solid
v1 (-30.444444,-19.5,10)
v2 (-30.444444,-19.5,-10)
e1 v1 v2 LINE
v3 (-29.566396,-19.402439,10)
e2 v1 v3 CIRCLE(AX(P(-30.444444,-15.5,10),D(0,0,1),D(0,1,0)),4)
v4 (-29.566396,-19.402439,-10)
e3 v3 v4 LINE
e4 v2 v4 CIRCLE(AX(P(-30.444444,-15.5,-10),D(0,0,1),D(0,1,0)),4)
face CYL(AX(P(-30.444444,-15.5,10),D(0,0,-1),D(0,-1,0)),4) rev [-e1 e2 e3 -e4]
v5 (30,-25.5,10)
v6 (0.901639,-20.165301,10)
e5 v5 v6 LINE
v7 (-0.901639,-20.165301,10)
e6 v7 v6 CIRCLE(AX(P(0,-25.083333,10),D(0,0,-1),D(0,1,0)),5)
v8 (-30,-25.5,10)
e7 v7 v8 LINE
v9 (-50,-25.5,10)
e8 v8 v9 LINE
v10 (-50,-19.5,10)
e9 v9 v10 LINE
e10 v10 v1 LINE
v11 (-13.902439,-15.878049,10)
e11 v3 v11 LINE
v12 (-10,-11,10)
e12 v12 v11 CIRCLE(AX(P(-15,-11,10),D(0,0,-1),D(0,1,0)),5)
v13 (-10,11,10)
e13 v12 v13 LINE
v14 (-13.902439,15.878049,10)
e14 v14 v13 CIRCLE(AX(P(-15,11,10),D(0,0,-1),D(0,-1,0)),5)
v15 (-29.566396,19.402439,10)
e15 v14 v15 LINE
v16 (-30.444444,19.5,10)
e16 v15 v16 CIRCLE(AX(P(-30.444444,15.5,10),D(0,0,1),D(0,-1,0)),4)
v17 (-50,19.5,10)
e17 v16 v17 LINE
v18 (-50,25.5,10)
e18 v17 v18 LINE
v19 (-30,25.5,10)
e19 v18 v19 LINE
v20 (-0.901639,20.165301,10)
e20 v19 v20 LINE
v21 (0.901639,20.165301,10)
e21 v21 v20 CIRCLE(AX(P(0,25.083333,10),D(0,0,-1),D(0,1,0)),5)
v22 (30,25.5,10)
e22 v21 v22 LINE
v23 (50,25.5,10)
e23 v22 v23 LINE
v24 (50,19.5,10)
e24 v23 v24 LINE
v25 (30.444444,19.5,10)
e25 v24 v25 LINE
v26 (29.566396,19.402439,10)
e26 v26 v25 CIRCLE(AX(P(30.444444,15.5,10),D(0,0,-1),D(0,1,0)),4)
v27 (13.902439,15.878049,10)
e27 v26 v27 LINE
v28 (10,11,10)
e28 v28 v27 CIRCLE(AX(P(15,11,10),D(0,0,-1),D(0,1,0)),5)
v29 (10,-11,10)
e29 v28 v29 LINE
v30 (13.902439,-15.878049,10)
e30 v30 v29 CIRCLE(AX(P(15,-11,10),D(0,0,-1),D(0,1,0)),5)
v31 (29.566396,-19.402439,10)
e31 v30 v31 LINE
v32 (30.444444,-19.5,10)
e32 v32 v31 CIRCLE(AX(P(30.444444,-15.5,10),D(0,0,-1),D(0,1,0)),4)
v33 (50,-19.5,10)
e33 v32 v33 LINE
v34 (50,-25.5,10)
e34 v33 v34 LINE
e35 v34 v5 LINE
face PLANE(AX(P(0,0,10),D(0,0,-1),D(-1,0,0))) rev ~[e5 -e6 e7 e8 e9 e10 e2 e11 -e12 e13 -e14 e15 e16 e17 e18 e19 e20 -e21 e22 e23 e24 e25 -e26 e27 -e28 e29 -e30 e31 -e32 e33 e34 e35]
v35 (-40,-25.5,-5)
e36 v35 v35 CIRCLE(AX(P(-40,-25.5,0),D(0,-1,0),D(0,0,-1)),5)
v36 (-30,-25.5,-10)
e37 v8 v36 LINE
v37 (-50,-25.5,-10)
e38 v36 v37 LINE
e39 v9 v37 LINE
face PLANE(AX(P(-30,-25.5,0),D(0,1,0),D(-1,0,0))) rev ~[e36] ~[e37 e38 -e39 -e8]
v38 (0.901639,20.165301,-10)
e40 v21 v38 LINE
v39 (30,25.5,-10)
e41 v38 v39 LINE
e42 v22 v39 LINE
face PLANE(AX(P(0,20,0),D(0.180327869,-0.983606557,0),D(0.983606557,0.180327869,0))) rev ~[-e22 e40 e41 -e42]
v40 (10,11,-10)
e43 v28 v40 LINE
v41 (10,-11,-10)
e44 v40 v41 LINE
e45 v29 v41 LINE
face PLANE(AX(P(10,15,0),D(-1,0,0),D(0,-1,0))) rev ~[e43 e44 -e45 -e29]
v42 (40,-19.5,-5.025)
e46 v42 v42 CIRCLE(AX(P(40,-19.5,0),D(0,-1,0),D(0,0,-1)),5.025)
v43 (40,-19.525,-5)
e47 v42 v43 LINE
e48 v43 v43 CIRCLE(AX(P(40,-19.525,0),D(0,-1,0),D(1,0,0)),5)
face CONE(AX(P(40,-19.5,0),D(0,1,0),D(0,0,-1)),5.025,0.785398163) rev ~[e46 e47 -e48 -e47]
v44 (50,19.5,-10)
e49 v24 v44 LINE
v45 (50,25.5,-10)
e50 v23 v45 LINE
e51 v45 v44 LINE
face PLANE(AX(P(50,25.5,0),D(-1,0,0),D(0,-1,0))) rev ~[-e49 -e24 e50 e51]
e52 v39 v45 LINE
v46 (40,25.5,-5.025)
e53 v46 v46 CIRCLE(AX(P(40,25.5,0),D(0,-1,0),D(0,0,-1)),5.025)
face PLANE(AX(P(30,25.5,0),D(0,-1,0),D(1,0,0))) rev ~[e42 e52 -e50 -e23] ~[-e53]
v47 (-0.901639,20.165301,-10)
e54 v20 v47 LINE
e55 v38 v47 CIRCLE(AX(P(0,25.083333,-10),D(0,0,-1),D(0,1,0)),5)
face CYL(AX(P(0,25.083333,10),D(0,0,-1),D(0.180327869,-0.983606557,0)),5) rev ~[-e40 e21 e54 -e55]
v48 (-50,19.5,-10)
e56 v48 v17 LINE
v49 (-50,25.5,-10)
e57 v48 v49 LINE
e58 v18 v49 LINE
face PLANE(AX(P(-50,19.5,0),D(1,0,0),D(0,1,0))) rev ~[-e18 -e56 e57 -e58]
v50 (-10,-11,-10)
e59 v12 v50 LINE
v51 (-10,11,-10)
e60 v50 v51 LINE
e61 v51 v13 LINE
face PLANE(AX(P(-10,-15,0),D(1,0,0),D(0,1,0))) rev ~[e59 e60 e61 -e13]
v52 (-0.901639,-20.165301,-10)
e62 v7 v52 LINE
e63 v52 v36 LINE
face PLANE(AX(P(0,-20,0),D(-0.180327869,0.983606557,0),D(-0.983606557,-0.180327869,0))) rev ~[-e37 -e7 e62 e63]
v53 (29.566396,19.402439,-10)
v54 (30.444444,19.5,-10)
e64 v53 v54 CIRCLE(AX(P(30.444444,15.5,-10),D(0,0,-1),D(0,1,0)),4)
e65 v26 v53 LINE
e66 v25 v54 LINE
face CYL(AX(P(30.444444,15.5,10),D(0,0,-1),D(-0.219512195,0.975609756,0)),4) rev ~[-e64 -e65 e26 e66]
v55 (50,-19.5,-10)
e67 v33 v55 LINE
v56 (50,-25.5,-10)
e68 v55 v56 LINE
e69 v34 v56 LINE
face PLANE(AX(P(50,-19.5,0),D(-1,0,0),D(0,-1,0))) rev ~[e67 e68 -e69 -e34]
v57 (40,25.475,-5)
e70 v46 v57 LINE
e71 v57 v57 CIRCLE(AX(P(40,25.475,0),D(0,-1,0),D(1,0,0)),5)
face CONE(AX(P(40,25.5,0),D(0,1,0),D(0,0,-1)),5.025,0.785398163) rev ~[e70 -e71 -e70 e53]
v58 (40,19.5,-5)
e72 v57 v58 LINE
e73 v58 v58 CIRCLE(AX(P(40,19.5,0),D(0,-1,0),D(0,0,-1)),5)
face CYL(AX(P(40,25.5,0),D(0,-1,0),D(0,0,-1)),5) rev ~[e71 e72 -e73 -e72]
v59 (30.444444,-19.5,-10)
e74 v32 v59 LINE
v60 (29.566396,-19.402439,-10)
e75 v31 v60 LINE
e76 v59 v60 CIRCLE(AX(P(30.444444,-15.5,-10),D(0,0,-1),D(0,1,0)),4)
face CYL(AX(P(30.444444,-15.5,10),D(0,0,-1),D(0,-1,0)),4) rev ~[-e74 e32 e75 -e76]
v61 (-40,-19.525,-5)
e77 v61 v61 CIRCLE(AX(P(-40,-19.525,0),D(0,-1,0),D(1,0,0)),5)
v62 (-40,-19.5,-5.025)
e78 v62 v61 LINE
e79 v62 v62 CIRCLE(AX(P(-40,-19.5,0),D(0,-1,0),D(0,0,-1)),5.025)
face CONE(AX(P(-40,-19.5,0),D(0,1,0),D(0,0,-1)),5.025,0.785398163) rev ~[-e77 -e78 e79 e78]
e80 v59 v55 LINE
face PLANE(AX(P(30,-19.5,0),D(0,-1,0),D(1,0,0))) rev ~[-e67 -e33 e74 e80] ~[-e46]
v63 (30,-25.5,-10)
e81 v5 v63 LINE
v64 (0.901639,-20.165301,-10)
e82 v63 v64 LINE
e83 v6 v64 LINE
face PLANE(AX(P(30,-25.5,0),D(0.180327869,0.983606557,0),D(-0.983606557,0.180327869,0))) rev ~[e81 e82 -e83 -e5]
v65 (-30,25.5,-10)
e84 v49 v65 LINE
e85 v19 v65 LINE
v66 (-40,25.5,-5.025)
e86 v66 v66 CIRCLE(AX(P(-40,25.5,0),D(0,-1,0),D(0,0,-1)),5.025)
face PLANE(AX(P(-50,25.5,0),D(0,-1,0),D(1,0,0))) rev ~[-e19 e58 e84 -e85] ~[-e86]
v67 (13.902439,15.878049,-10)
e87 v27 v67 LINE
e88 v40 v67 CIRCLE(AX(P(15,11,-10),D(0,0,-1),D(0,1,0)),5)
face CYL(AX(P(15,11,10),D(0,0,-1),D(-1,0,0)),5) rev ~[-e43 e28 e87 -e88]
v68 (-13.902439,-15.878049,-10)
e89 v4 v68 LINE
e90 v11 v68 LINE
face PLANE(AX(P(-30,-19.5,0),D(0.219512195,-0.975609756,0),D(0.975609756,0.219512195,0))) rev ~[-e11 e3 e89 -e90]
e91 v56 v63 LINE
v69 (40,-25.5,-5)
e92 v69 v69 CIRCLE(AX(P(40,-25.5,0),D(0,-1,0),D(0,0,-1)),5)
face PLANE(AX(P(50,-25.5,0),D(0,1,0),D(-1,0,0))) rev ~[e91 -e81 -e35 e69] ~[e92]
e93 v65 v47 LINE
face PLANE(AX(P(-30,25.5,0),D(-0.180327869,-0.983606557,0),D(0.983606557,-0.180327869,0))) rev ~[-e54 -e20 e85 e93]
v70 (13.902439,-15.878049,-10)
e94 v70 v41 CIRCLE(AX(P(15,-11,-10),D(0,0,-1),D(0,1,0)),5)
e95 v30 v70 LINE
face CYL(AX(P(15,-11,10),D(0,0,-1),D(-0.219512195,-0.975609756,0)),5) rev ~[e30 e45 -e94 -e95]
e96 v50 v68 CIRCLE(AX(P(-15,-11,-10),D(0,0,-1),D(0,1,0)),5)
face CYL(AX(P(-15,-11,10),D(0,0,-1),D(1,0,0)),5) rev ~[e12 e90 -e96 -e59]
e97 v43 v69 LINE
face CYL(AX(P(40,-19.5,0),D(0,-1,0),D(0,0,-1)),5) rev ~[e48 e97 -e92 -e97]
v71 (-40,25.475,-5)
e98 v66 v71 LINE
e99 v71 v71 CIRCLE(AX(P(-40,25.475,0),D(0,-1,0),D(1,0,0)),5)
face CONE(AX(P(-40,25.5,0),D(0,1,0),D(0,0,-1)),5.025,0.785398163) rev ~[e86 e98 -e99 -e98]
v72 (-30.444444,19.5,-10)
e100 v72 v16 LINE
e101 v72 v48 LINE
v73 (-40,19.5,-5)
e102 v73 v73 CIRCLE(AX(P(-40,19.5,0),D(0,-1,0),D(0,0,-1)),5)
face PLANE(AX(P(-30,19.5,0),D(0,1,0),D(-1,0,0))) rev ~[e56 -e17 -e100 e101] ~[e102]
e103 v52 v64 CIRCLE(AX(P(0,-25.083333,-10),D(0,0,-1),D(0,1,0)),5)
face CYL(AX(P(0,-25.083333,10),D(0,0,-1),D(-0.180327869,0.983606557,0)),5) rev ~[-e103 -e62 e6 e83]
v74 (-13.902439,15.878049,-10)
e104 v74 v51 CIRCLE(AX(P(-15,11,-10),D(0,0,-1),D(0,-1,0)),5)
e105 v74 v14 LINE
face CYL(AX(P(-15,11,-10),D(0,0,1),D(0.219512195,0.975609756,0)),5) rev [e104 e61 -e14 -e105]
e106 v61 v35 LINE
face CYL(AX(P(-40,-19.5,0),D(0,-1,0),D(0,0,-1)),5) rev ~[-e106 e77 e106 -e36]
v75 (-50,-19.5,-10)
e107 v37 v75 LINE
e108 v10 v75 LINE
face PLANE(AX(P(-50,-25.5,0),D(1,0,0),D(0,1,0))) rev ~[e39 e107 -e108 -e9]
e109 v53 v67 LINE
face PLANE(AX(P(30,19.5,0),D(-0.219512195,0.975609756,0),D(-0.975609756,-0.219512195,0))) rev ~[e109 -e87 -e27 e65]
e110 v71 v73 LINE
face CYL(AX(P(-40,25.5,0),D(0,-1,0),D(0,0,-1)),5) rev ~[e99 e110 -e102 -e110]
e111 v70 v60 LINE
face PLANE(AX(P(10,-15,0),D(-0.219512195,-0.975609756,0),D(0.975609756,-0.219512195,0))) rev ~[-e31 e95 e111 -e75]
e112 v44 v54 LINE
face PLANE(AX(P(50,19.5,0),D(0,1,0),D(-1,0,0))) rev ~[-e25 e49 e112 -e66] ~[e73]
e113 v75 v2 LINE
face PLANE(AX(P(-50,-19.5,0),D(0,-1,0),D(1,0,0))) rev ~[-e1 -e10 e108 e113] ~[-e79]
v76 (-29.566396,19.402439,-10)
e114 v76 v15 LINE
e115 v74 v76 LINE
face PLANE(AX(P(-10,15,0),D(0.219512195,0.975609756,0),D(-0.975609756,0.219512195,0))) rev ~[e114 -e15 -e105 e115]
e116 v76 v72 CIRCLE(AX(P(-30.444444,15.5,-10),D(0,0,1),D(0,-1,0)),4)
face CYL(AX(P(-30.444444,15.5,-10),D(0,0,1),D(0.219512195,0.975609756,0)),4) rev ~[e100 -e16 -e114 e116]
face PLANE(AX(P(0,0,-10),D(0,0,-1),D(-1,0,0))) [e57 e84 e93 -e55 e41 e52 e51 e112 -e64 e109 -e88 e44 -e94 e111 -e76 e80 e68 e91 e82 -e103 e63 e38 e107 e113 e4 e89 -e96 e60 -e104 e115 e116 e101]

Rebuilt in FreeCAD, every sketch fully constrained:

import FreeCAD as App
import Part
import Sketcher
Q = App.Units.Quantity


def edges_at(feature, points):
    """Names of the edges that pass closest to the given points."""
    edges = feature.Shape.Edges
    near = lambda p: min(range(len(edges)), key=lambda i: edges[i].distToShape(Part.Vertex(*p))[0])
    return sorted({f"Edge{near(p) + 1}" for p in points})


def add_polygon(sketch, points):
    """Adds a closed chain of lines whose ends are joined by coincident constraints."""
    first, n = sketch.GeometryCount, len(points)
    for a, b in zip(points, points[1:] + points[:1]):
        sketch.addGeometry(Part.LineSegment(App.Vector(*a, 0), App.Vector(*b, 0)), False)
    for i in range(n):
        sketch.addConstraint(Sketcher.Constraint("Coincident", first + i, 2, first + (i + 1) % n, 1))

doc = App.newDocument("Part")
params = doc.addObject("Spreadsheet::Sheet", "Params")
for row, (alias, value) in enumerate([
    ("sketch1_width", "20 mm"),
    ("sketch1_height", "6 mm"),
    ("sketch1_height2", "30 mm"),
    ("pad1_length", "20 mm"),
    ("fillet_radius", "5 mm"),
    ("sketch2_diameter", "10 mm"),
    ("hole_diameter", "10 mm"),
    ("hole_depth", "24.5 mm"),
    ("hole_csink_diameter", "10.05 mm"),
    ("sketch3_diameter", "10 mm"),
    ("hole2_diameter", "10 mm"),
    ("hole2_depth", "24.5 mm"),
    ("hole2_csink_diameter", "10.05 mm"),
    ("fillet2_radius", "4 mm"),
], start=1):
    params.set(f"A{row}", alias)
    params.set(f"B{row}", "=" + value)
    params.setAlias(f"B{row}", alias)

body = doc.addObject("PartDesign::Body", "Body")

sketch1 = body.newObject("Sketcher::SketchObject", "Sketch")
sketch1.AttachmentSupport = (doc.getObject("XY_Plane"), [""])
sketch1.MapMode = "FlatFace"
add_polygon(sketch1, [(-50, 26), (-50, 20), (-30, 20), (-10, 15), (-10, -15), (-30, -20), (-50, -20), (-50, -26), (-30, -26), (0, -20), (30, -26), (50, -26), (50, -20), (30, -20), (10, -15), (10, 15), (30, 20), (50, 20), (50, 26), (30, 26), (0, 20), (-30, 26)])
sketch1.addConstraint(Sketcher.Constraint("Vertical", 0))
sketch1.addConstraint(Sketcher.Constraint("Horizontal", 1))
sketch1.addConstraint(Sketcher.Constraint("Vertical", 3))
sketch1.addConstraint(Sketcher.Constraint("Horizontal", 5))
sketch1.addConstraint(Sketcher.Constraint("Vertical", 6))
sketch1.addConstraint(Sketcher.Constraint("Horizontal", 7))
sketch1.addConstraint(Sketcher.Constraint("Horizontal", 10))
sketch1.addConstraint(Sketcher.Constraint("Vertical", 11))
sketch1.addConstraint(Sketcher.Constraint("Horizontal", 12))
sketch1.addConstraint(Sketcher.Constraint("Vertical", 14))
sketch1.addConstraint(Sketcher.Constraint("Horizontal", 16))
sketch1.addConstraint(Sketcher.Constraint("Vertical", 17))
sketch1.addConstraint(Sketcher.Constraint("Horizontal", 18))
sketch1.addConstraint(Sketcher.Constraint("Horizontal", 21))
sketch1.addConstraint(Sketcher.Constraint("Symmetric", 0, 2, 11, 2, -1, 1))
sketch1.addConstraint(Sketcher.Constraint("Symmetric", 2, 2, 13, 2, -1, 1))
sketch1.addConstraint(Sketcher.Constraint("Symmetric", 4, 2, 15, 2, -1, 1))
sketch1.addConstraint(Sketcher.Constraint("Symmetric", 6, 2, 17, 2, -1, 1))
sketch1.addConstraint(Sketcher.Constraint("Symmetric", 8, 2, 19, 2, -1, 1))
sketch1.addConstraint(Sketcher.Constraint("Symmetric", 9, 2, 20, 2, -1, 1))
sketch1.addConstraint(Sketcher.Constraint("Symmetric", 7, 2, 9, 2, -2))
sketch1.addConstraint(Sketcher.Constraint("Symmetric", 5, 2, 11, 2, -2))
sketch1.addConstraint(Sketcher.Constraint("PointOnObject", 8, 2, -2))
sketch1.addConstraint(Sketcher.Constraint("Parallel", 2, 13))
sketch1.addConstraint(Sketcher.Constraint("Parallel", 4, 15))
sketch1.addConstraint(Sketcher.Constraint("Parallel", 8, 19))
sketch1.addConstraint(Sketcher.Constraint("Horizontal", 3, 2, 13, 2))
sketch1.addConstraint(Sketcher.Constraint("Vertical", 1, 2, 4, 2))
sketch1.addConstraint(Sketcher.Constraint("Vertical", 4, 2, 7, 2))
sketch1.addConstraint(Sketcher.Constraint("DistanceX", 1, 1, 1, 2, Q("20 mm")))
sketch1.addConstraint(Sketcher.Constraint("DistanceY", 0, 2, 0, 1, Q("6 mm")))
sketch1.addConstraint(Sketcher.Constraint("DistanceY", 3, 2, 3, 1, Q("30 mm")))
sketch1.addConstraint(Sketcher.Constraint("DistanceX", 0, 2, -1, 1, Q("50 mm")))
sketch1.addConstraint(Sketcher.Constraint("DistanceX", 2, 2, -1, 1, Q("10 mm")))
sketch1.addConstraint(Sketcher.Constraint("DistanceY", 8, 2, -1, 1, Q("20 mm")))
sketch1.addConstraint(Sketcher.Constraint("DistanceY", 4, 2, 1, 2, Q("39 mm")))
sketch1.setExpression("Constraints[51]", "Params.sketch1_width")
sketch1.setExpression("Constraints[52]", "Params.sketch1_height")
sketch1.setExpression("Constraints[53]", "Params.sketch1_height2")
pad1 = body.newObject("PartDesign::Pad", "Pad")
pad1.Profile = sketch1
pad1.setExpression("Length", "Params.pad1_length")
pad1.Midplane = True
doc.recompute()

fillet = body.newObject("PartDesign::Fillet", "Fillet")
fillet.Base = (pad1, edges_at(pad1, [
    (-10, 15, 0),
    (0, 20, 0),
    (10, 15, 0),
    (10, -15, 0),
    (0, -20, 0),
    (-10, -15, 0),
]))
fillet.setExpression("Radius", "Params.fillet_radius")

sketch2 = body.newObject("Sketcher::SketchObject", "Sketch001")
sketch2.AttachmentSupport = (doc.getObject("XZ_Plane"), [""])
sketch2.MapMode = "FlatFace"
sketch2.AttachmentOffset = App.Placement(App.Vector(0, 0, -25.5), App.Rotation())
sketch2.addGeometry(Part.Circle(App.Vector(-40, 0, 0), App.Vector(0, 0, 1), 5), False)
sketch2.addGeometry(Part.Circle(App.Vector(40, 0, 0), App.Vector(0, 0, 1), 5), False)
sketch2.addConstraint(Sketcher.Constraint("Equal", 0, 1))
sketch2.addConstraint(Sketcher.Constraint("Symmetric", 0, 3, 1, 3, -1, 1))
sketch2.addConstraint(Sketcher.Constraint("PointOnObject", 0, 3, -1))
sketch2.addConstraint(Sketcher.Constraint("Diameter", 0, Q("10 mm")))
sketch2.addConstraint(Sketcher.Constraint("DistanceX", 0, 3, -1, 1, Q("40 mm")))
sketch2.setExpression("Constraints[3]", "Params.sketch2_diameter")
doc.recompute()
hole = body.newObject("PartDesign::Hole", "Hole")
hole.Profile = sketch2
hole.ThreadType = "None"
hole.setExpression("Diameter", "Params.hole_diameter")
hole.DepthType = "Dimension"
hole.setExpression("Depth", "Params.hole_depth")
hole.DrillPoint = "Angled"
hole.DrillPointAngle = 118
hole.HoleCutType = "Countersink"
hole.setExpression("HoleCutDiameter", "Params.hole_csink_diameter")
hole.HoleCutCountersinkAngle = 90
hole.Reversed = True

sketch3 = body.newObject("Sketcher::SketchObject", "Sketch002")
sketch3.AttachmentSupport = (doc.getObject("XZ_Plane"), [""])
sketch3.MapMode = "FlatFace"
sketch3.AttachmentOffset = App.Placement(App.Vector(0, 0, 19.5), App.Rotation())
sketch3.addGeometry(Part.Circle(App.Vector(-40, 0, 0), App.Vector(0, 0, 1), 5), False)
sketch3.addGeometry(Part.Circle(App.Vector(40, 0, 0), App.Vector(0, 0, 1), 5), False)
sketch3.addConstraint(Sketcher.Constraint("Equal", 0, 1))
sketch3.addConstraint(Sketcher.Constraint("Symmetric", 0, 3, 1, 3, -1, 1))
sketch3.addConstraint(Sketcher.Constraint("PointOnObject", 0, 3, -1))
sketch3.addConstraint(Sketcher.Constraint("Diameter", 0, Q("10 mm")))
sketch3.addConstraint(Sketcher.Constraint("DistanceX", 0, 3, -1, 1, Q("40 mm")))
sketch3.setExpression("Constraints[3]", "Params.sketch3_diameter")
doc.recompute()
hole2 = body.newObject("PartDesign::Hole", "Hole001")
hole2.Profile = sketch3
hole2.ThreadType = "None"
hole2.setExpression("Diameter", "Params.hole2_diameter")
hole2.DepthType = "Dimension"
hole2.setExpression("Depth", "Params.hole2_depth")
hole2.DrillPoint = "Angled"
hole2.DrillPointAngle = 118
hole2.HoleCutType = "Countersink"
hole2.setExpression("HoleCutDiameter", "Params.hole2_csink_diameter")
hole2.HoleCutCountersinkAngle = 90
hole2.Reversed = True
doc.recompute()

fillet2 = body.newObject("PartDesign::Fillet", "Fillet001")
fillet2.Base = (hole2, edges_at(hole2, [
    (-30, 19.5, 0),
    (30, 19.5, 0),
    (30, -19.5, 0),
    (-30, -19.5, 0),
]))
fillet2.setExpression("Radius", "Params.fillet2_radius")

doc.recompute()
